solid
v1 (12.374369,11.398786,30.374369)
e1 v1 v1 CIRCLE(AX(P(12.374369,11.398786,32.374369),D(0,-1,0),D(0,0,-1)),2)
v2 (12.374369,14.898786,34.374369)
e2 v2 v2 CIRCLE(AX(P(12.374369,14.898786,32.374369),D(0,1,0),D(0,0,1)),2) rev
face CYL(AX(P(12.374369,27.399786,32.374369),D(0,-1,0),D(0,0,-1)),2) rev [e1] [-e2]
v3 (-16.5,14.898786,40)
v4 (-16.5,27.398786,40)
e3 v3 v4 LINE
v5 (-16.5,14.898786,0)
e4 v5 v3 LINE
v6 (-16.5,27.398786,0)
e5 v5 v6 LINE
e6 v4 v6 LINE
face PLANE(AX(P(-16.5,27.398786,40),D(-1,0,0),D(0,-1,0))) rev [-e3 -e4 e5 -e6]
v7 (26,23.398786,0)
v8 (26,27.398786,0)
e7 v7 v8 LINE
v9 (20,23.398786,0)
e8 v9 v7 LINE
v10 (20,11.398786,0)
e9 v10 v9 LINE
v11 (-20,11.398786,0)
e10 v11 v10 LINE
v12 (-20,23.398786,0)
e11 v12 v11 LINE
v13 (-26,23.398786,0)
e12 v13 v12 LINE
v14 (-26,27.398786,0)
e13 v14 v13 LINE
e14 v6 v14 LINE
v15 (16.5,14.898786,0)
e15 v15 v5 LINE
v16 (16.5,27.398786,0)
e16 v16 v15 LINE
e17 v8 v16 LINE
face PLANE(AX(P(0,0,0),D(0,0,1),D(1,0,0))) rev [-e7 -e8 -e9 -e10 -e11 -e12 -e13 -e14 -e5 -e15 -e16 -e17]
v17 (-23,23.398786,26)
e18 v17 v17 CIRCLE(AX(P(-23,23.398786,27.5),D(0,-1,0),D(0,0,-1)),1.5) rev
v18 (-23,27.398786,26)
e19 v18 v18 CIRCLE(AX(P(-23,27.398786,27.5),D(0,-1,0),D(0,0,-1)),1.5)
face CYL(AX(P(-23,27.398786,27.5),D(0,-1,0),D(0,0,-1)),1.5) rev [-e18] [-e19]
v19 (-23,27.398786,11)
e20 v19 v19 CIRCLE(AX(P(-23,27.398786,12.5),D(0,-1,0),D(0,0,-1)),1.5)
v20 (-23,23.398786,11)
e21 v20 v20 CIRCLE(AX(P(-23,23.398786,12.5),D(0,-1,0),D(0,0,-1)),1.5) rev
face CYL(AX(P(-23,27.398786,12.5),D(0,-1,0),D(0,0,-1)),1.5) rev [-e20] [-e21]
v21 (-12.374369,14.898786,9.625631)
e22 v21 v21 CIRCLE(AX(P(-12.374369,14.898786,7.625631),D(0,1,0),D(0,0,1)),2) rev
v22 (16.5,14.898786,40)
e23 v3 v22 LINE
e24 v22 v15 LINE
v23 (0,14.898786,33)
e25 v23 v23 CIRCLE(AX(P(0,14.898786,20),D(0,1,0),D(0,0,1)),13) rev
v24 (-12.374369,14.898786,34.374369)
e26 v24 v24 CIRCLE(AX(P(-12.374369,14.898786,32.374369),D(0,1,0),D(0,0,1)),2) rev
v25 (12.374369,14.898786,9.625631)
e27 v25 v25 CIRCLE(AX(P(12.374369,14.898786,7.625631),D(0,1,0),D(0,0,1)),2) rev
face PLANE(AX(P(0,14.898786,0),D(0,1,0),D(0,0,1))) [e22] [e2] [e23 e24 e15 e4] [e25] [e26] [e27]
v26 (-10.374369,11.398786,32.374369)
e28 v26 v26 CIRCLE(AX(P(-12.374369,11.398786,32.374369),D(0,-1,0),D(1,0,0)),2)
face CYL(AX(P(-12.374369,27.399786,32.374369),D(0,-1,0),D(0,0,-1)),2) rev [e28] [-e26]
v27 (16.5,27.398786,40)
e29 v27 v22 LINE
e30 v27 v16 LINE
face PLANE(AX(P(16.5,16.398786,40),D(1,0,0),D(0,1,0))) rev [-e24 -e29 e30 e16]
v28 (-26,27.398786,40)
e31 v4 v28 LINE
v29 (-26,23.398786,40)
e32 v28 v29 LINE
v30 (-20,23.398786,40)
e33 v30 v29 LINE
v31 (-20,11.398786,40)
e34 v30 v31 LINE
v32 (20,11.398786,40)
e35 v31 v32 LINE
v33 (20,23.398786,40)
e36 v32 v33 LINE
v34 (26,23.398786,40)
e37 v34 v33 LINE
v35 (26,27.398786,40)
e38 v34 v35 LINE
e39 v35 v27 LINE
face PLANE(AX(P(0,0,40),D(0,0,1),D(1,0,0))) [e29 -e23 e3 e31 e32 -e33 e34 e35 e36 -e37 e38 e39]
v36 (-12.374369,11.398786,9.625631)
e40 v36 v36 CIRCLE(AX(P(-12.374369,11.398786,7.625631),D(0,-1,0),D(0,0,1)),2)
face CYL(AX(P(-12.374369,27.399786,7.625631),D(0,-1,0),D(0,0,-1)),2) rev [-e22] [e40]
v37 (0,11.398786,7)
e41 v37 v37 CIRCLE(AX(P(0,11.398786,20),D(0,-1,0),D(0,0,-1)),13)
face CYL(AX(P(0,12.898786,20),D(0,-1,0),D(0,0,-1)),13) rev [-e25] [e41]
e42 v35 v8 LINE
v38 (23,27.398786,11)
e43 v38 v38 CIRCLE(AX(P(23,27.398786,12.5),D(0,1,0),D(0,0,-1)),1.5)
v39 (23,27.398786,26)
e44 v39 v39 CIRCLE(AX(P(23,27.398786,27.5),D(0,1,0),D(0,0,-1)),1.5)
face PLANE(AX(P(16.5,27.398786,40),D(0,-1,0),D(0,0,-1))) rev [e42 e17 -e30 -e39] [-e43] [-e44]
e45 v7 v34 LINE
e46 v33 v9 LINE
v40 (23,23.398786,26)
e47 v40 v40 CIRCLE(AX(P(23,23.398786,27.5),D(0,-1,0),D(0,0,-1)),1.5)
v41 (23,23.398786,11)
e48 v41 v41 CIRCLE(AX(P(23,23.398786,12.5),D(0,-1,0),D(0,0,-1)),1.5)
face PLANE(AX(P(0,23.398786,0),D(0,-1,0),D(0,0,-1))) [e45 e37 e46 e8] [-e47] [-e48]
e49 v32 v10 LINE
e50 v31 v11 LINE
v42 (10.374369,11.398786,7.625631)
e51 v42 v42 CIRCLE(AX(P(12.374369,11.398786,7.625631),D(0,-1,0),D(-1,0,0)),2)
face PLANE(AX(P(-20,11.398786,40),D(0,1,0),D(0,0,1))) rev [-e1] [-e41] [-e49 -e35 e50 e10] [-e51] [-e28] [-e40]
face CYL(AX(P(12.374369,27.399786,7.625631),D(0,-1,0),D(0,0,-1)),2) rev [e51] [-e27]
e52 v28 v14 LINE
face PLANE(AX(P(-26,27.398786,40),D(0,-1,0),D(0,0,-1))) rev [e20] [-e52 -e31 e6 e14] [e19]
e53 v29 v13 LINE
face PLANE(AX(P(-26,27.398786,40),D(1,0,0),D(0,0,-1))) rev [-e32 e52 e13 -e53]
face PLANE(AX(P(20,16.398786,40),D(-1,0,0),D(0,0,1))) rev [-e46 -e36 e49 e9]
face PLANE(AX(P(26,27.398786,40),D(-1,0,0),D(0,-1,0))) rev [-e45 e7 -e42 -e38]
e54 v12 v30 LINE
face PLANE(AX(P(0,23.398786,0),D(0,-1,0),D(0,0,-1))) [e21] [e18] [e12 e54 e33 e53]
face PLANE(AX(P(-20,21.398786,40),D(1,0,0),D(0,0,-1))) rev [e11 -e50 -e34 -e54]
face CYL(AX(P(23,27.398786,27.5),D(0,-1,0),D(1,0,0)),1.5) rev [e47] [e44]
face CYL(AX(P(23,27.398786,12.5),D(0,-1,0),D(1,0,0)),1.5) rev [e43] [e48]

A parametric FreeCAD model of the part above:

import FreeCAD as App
import Part
import Sketcher

doc = App.newDocument("Part")
params = doc.addObject("Spreadsheet::Sheet", "Params")
for row, (alias, value) in enumerate([
    ("sketch1_width", "6 mm"),
    ("sketch1_width2", "40 mm"),
    ("sketch1_width3", "33 mm"),
    ("sketch1_height", "11 mm"),
    ("sketch1_height2", "10 mm"),
    ("pad1_length", "40 mm"),
    ("sketch2_diameter", "26 mm"),
    ("pocket1_length", "1.5 mm"),
    ("sketch3_diameter", "26 mm"),
    ("sketch4_diameter", "4 mm"),
    ("pocket3_length", "5 mm"),
    ("sketch5_diameter", "3 mm"),
    ("sketch6_width", "33 mm"),
    ("sketch6_height", "40 mm"),
    ("pocket5_length", "1.5 mm"),
    ("sketch7_width", "6 mm"),
    ("sketch7_height", "40 mm"),
    ("pocket6_length", "2 mm"),
], start=1):
    params.set(f"A{row}", alias)
    params.set(f"B{row}", "=" + value)
    params.setAlias(f"B{row}", alias)

body = doc.addObject("PartDesign::Body", "Body")

# Sketch on XY plane
sketch1 = body.newObject("Sketcher::SketchObject", "Sketch")
sketch1.AttachmentSupport = (doc.getObject("XY_Plane"), [""])
sketch1.MapMode = "FlatFace"
sketch1.addGeometry([
    Part.LineSegment(App.Vector(-16, 16, 0), App.Vector(-16, 27, 0)),  # 0
    Part.LineSegment(App.Vector(-16, 27, 0), App.Vector(-26, 27, 0)),  # 1
    Part.LineSegment(App.Vector(-26, 27, 0), App.Vector(-26, 21, 0)),  # 2
    Part.LineSegment(App.Vector(-26, 21, 0), App.Vector(-20, 21, 0)),  # 3
    Part.LineSegment(App.Vector(-20, 21, 0), App.Vector(-20, 11, 0)),  # 4
    Part.LineSegment(App.Vector(-20, 11, 0), App.Vector(20, 11, 0)),  # 5
    Part.LineSegment(App.Vector(20, 11, 0), App.Vector(20, 21, 0)),  # 6
    Part.LineSegment(App.Vector(20, 21, 0), App.Vector(26, 21, 0)),  # 7
    Part.LineSegment(App.Vector(26, 21, 0), App.Vector(26, 27, 0)),  # 8
    Part.LineSegment(App.Vector(26, 27, 0), App.Vector(16, 27, 0)),  # 9
    Part.LineSegment(App.Vector(16, 27, 0), App.Vector(16, 16, 0)),  # 10
    Part.LineSegment(App.Vector(16, 16, 0), App.Vector(-16, 16, 0)),  # 11
], False)
sketch1.addConstraint([
    Sketcher.Constraint("Coincident", 0, 2, 1, 1),
    Sketcher.Constraint("Coincident", 1, 2, 2, 1),
    Sketcher.Constraint("Coincident", 2, 2, 3, 1),
    Sketcher.Constraint("Coincident", 3, 2, 4, 1),
    Sketcher.Constraint("Coincident", 4, 2, 5, 1),
    Sketcher.Constraint("Coincident", 5, 2, 6, 1),
    Sketcher.Constraint("Coincident", 6, 2, 7, 1),
    Sketcher.Constraint("Coincident", 7, 2, 8, 1),
    Sketcher.Constraint("Coincident", 8, 2, 9, 1),
    Sketcher.Constraint("Coincident", 9, 2, 10, 1),
    Sketcher.Constraint("Coincident", 10, 2, 11, 1),
    Sketcher.Constraint("Coincident", 11, 2, 0, 1),
    Sketcher.Constraint("Vertical", 0),
    Sketcher.Constraint("Horizontal", 1),
    Sketcher.Constraint("Vertical", 2),
    Sketcher.Constraint("Horizontal", 3),
    Sketcher.Constraint("Vertical", 4),
    Sketcher.Constraint("Horizontal", 5),
    Sketcher.Constraint("Vertical", 6),
    Sketcher.Constraint("Horizontal", 7),
    Sketcher.Constraint("Vertical", 8),
    Sketcher.Constraint("Horizontal", 9),
    Sketcher.Constraint("Vertical", 10),
    Sketcher.Constraint("Horizontal", 11),
    Sketcher.Constraint("Symmetric", 3, 2, 6, 2, -2),
    Sketcher.Constraint("Symmetric", 1, 2, 8, 2, -2),
    Sketcher.Constraint("Equal", 1, 9),
    Sketcher.Constraint("Equal", 7, 2),
    Sketcher.Constraint("DistanceX", 3, 1, 3, 2, 6.0),
    Sketcher.Constraint("DistanceX", 5, 1, 5, 2, 40.0),
    Sketcher.Constraint("DistanceX", 11, 2, 11, 1, 33.0),
    Sketcher.Constraint("DistanceY", 0, 1, 0, 2, 11.0),
    Sketcher.Constraint("DistanceY", 4, 2, 4, 1, 10.0),
    Sketcher.Constraint("DistanceY", -1, 1, 0, 2, 27.398786),
])
sketch1.setExpression("Constraints[28]", "Params.sketch1_width")
sketch1.setExpression("Constraints[29]", "Params.sketch1_width2")
sketch1.setExpression("Constraints[30]", "Params.sketch1_width3")
sketch1.setExpression("Constraints[31]", "Params.sketch1_height")
sketch1.setExpression("Constraints[32]", "Params.sketch1_height2")
pad1 = body.newObject("PartDesign::Pad", "Pad")
pad1.Profile = sketch1
pad1.setExpression("Length", "Params.pad1_length")

# Sketch on XZ plane
sketch2 = body.newObject("Sketcher::SketchObject", "Sketch001")
sketch2.AttachmentSupport = (doc.getObject("XZ_Plane"), [""])
sketch2.MapMode = "FlatFace"
sketch2.AttachmentOffset = App.Placement(App.Vector(0, 0, -11.398786), App.Rotation())
sketch2.addGeometry(Part.Circle(App.Vector(0, 20, 0), App.Vector(0, 0, 1), 13), False)
sketch2.addConstraint([
    Sketcher.Constraint("PointOnObject", 0, 3, -2),
    Sketcher.Constraint("Diameter", 0, 26.0),
    Sketcher.Constraint("DistanceY", -1, 1, 0, 3, 20.0),
])
sketch2.setExpression("Constraints[1]", "Params.sketch2_diameter")
pocket1 = body.newObject("PartDesign::Pocket", "Pocket")
pocket1.Profile = sketch2
pocket1.setExpression("Length", "Params.pocket1_length")

# Sketch on XZ plane
sketch3 = body.newObject("Sketcher::SketchObject", "Sketch002")
sketch3.AttachmentSupport = (doc.getObject("XZ_Plane"), [""])
sketch3.MapMode = "FlatFace"
sketch3.AttachmentOffset = App.Placement(App.Vector(0, 0, -12.898786), App.Rotation())
sketch3.addGeometry(Part.Circle(App.Vector(0, 20, 0), App.Vector(0, 0, 1), 13), False)
sketch3.addConstraint([
    Sketcher.Constraint("PointOnObject", 0, 3, -2),
    Sketcher.Constraint("Diameter", 0, 26.0),
    Sketcher.Constraint("DistanceY", -1, 1, 0, 3, 20.0),
])
sketch3.setExpression("Constraints[1]", "Params.sketch3_diameter")
pocket2 = body.newObject("PartDesign::Pocket", "Pocket001")
pocket2.Profile = sketch3
pocket2.Type = "ThroughAll"

# Sketch on XZ plane
sketch4 = body.newObject("Sketcher::SketchObject", "Sketch003")
sketch4.AttachmentSupport = (doc.getObject("XZ_Plane"), [""])
sketch4.MapMode = "FlatFace"
sketch4.AttachmentOffset = App.Placement(App.Vector(0, 0, -11.398786), App.Rotation())
sketch4.addGeometry(Part.Circle(App.Vector(12.4, 32.4, 0), App.Vector(0, 0, 1), 2), False)
sketch4.addConstraint([
    Sketcher.Constraint("Diameter", 0, 4.0),
    Sketcher.Constraint("DistanceX", -1, 1, 0, 3, 12.374369),
    Sketcher.Constraint("DistanceY", -1, 1, 0, 3, 32.374369),
])
sketch4.setExpression("Constraints[0]", "Params.sketch4_diameter")
pocket3 = body.newObject("PartDesign::Pocket", "Pocket002")
pocket3.Profile = sketch4
pocket3.setExpression("Length", "Params.pocket3_length")
doc.recompute()

datumline = body.newObject("PartDesign::Line", "DatumLine")
datumline.Placement = App.Placement(App.Vector(0, 0, 20), App.Rotation(App.Vector(0, 0, 1), App.Vector(0, 1, 0)))
polarpattern = body.newObject("PartDesign::PolarPattern", "PolarPattern")
polarpattern.Originals = [pocket3]
polarpattern.Axis = (datumline, [""])
polarpattern.Angle = 360
polarpattern.Occurrences = 4
body.Tip = polarpattern

# Sketch on XZ plane
sketch5 = body.newObject("Sketcher::SketchObject", "Sketch004")
sketch5.AttachmentSupport = (doc.getObject("XZ_Plane"), [""])
sketch5.MapMode = "FlatFace"
sketch5.AttachmentOffset = App.Placement(App.Vector(0, 0, -21.398786), App.Rotation())
sketch5.addGeometry([
    Part.Circle(App.Vector(-23, 27.5, 0), App.Vector(0, 0, 1), 1.5),
    Part.Circle(App.Vector(-23, 12.5, 0), App.Vector(0, 0, 1), 1.5),
], False)
sketch5.addConstraint([
    Sketcher.Constraint("Equal", 0, 1),
    Sketcher.Constraint("Vertical", 0, 3, 1, 3),
    Sketcher.Constraint("Diameter", 0, 3.0),
    Sketcher.Constraint("DistanceX", 0, 3, -1, 1, 23.0),
    Sketcher.Constraint("DistanceY", 1, 3, 0, 3, 15.0),
    Sketcher.Constraint("DistanceY", -1, 1, 0, 3, 27.5),
])
sketch5.setExpression("Constraints[2]", "Params.sketch5_diameter")
pocket4 = body.newObject("PartDesign::Pocket", "Pocket003")
pocket4.Profile = sketch5
pocket4.Type = "ThroughAll"
doc.recompute()

mirrored = body.newObject("PartDesign::Mirrored", "Mirrored")
mirrored.Originals = [pocket4]
mirrored.MirrorPlane = (doc.getObject("YZ_Plane"), [""])
body.Tip = mirrored

# Sketch on XZ plane
sketch6 = body.newObject("Sketcher::SketchObject", "Sketch005")
sketch6.AttachmentSupport = (doc.getObject("XZ_Plane"), [""])
sketch6.MapMode = "FlatFace"
sketch6.AttachmentOffset = App.Placement(App.Vector(0, 0, -16.398786), App.Rotation())
sketch6.addGeometry([
    Part.LineSegment(App.Vector(-16, 0, 0), App.Vector(-16, 40, 0)),
    Part.LineSegment(App.Vector(-16, 40, 0), App.Vector(16, 40, 0)),
    Part.LineSegment(App.Vector(16, 40, 0), App.Vector(16, 0, 0)),
    Part.LineSegment(App.Vector(16, 0, 0), App.Vector(-16, 0, 0)),
], False)
sketch6.addConstraint([
    Sketcher.Constraint("Coincident", 0, 2, 1, 1),
    Sketcher.Constraint("Coincident", 1, 2, 2, 1),
    Sketcher.Constraint("Coincident", 2, 2, 3, 1),
    Sketcher.Constraint("Coincident", 3, 2, 0, 1),
    Sketcher.Constraint("Vertical", 0),
    Sketcher.Constraint("Horizontal", 1),
    Sketcher.Constraint("Vertical", 2),
    Sketcher.Constraint("Horizontal", 3),
    Sketcher.Constraint("Symmetric", 2, 2, 3, 2, -1, 1),
    Sketcher.Constraint("DistanceX", 1, 1, 1, 2, 33.0),
    Sketcher.Constraint("DistanceY", 0, 1, 0, 2, 40.0),
])
sketch6.setExpression("Constraints[9]", "Params.sketch6_width")
sketch6.setExpression("Constraints[10]", "Params.sketch6_height")
pocket5 = body.newObject("PartDesign::Pocket", "Pocket004")
pocket5.Profile = sketch6
pocket5.setExpression("Length", "Params.pocket5_length")
pocket5.Reversed = True

# Sketch on XZ plane
sketch7 = body.newObject("Sketcher::SketchObject", "Sketch006")
sketch7.AttachmentSupport = (doc.getObject("XZ_Plane"), [""])
sketch7.MapMode = "FlatFace"
sketch7.AttachmentOffset = App.Placement(App.Vector(0, 0, -21.398786), App.Rotation())
sketch7.addGeometry([
    Part.LineSegment(App.Vector(-26, 40, 0), App.Vector(-26, 0, 0)),  # 0
    Part.LineSegment(App.Vector(-26, 0, 0), App.Vector(-20, 0, 0)),  # 1
    Part.LineSegment(App.Vector(-20, 0, 0), App.Vector(-20, 40, 0)),  # 2
    Part.LineSegment(App.Vector(-20, 40, 0), App.Vector(-26, 40, 0)),  # 3
    Part.LineSegment(App.Vector(20, 40, 0), App.Vector(20, 0, 0)),  # 4
    Part.LineSegment(App.Vector(20, 0, 0), App.Vector(26, 0, 0)),  # 5
    Part.LineSegment(App.Vector(26, 0, 0), App.Vector(26, 40, 0)),  # 6
    Part.LineSegment(App.Vector(26, 40, 0), App.Vector(20, 40, 0)),  # 7
], False)
sketch7.addConstraint([
    Sketcher.Constraint("Coincident", 0, 2, 1, 1),
    Sketcher.Constraint("Coincident", 1, 2, 2, 1),
    Sketcher.Constraint("Coincident", 2, 2, 3, 1),
    Sketcher.Constraint("Coincident", 3, 2, 0, 1),
    Sketcher.Constraint("Coincident", 4, 2, 5, 1),
    Sketcher.Constraint("Coincident", 5, 2, 6, 1),
    Sketcher.Constraint("Coincident", 6, 2, 7, 1),
    Sketcher.Constraint("Coincident", 7, 2, 4, 1),
    Sketcher.Constraint("Vertical", 0),
    Sketcher.Constraint("Horizontal", 1),
    Sketcher.Constraint("Vertical", 2),
    Sketcher.Constraint("Horizontal", 3),
    Sketcher.Constraint("Vertical", 4),
    Sketcher.Constraint("Horizontal", 5),
    Sketcher.Constraint("Vertical", 6),
    Sketcher.Constraint("Horizontal", 7),
    Sketcher.Constraint("Symmetric", 1, 2, 4, 2, -1, 1),
    Sketcher.Constraint("Symmetric", 0, 2, 5, 2, -2),
    Sketcher.Constraint("Horizontal", 3, 2, 6, 2),
    Sketcher.Constraint("DistanceX", 1, 1, 1, 2, 6.0),
    Sketcher.Constraint("DistanceY", 0, 2, 0, 1, 40.0),
    Sketcher.Constraint("DistanceX", 0, 2, -1, 1, 26.0),
])
sketch7.setExpression("Constraints[19]", "Params.sketch7_width")
sketch7.setExpression("Constraints[20]", "Params.sketch7_height")
pocket6 = body.newObject("PartDesign::Pocket", "Pocket005")
pocket6.Profile = sketch7
pocket6.setExpression("Length", "Params.pocket6_length")

doc.recompute()
